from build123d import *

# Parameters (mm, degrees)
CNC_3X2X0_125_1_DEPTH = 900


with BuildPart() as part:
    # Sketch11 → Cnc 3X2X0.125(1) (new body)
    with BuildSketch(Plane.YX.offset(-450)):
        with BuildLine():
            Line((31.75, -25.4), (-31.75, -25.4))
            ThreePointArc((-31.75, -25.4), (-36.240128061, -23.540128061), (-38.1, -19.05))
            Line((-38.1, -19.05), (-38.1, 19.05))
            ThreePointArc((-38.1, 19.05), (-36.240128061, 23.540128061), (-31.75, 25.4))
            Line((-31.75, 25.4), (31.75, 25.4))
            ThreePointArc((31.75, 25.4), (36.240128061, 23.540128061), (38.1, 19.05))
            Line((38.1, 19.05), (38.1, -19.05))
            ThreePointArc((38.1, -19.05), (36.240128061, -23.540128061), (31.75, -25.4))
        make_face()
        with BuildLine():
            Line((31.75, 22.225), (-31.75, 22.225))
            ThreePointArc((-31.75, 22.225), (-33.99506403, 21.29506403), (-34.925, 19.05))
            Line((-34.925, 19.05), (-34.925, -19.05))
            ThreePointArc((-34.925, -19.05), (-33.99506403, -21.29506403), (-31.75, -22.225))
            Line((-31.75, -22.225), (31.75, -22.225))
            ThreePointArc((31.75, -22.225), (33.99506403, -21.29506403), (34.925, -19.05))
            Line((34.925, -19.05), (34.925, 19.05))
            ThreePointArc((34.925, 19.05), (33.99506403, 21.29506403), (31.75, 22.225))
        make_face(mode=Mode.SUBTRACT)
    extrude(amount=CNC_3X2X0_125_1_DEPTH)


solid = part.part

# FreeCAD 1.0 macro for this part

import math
import FreeCAD as App
import Part
import Sketcher

V = App.Vector
Q = App.Units.Quantity

doc = App.newDocument("Part")
body = doc.addObject("PartDesign::Body", "Body")

sketch1 = body.newObject("Sketcher::SketchObject", "Sketch")
sketch1.AttachmentSupport = (doc.getObject("XY_Plane"), [""])
sketch1.MapMode = "FlatFace"
sketch1.AttachmentOffset = App.Placement(V(0, 0, 450), App.Rotation())
sketch1.addGeometry(Part.LineSegment(V(-25.4, -31.75, 0), V(-25.4, 31.75, 0)), False)
sketch1.addGeometry(Part.ArcOfCircle(Part.Circle(V(-19.05, 31.75, 0), V(0, 0, 1), 6.35), math.radians(90), math.radians(180)), False)
sketch1.addGeometry(Part.LineSegment(V(-19.05, 38.1, 0), V(19.05, 38.1, 0)), False)
sketch1.addGeometry(Part.ArcOfCircle(Part.Circle(V(19.05, 31.75, 0), V(0, 0, 1), 6.35), math.radians(0), math.radians(90)), False)
sketch1.addGeometry(Part.LineSegment(V(25.4, 31.75, 0), V(25.4, -31.75, 0)), False)
sketch1.addGeometry(Part.ArcOfCircle(Part.Circle(V(19.05, -31.75, 0), V(0, 0, 1), 6.35), math.radians(-90), math.radians(0)), False)
sketch1.addGeometry(Part.LineSegment(V(19.05, -38.1, 0), V(-19.05, -38.1, 0)), False)
sketch1.addGeometry(Part.ArcOfCircle(Part.Circle(V(-19.05, -31.75, 0), V(0, 0, 1), 6.35), math.radians(180), math.radians(270)), False)
sketch1.addGeometry(Part.ArcOfCircle(Part.Circle(V(19.05, 31.75, 0), V(0, 0, 1), 3.175), math.radians(0), math.radians(90)), False)
sketch1.addGeometry(Part.LineSegment(V(19.05, 34.925, 0), V(-19.05, 34.925, 0)), False)
sketch1.addGeometry(Part.ArcOfCircle(Part.Circle(V(-19.05, 31.75, 0), V(0, 0, 1), 3.175), math.radians(90), math.radians(180)), False)
sketch1.addGeometry(Part.LineSegment(V(-22.225, 31.75, 0), V(-22.225, -31.75, 0)), False)
sketch1.addGeometry(Part.ArcOfCircle(Part.Circle(V(-19.05, -31.75, 0), V(0, 0, 1), 3.175), math.radians(-180), math.radians(-90)), False)
sketch1.addGeometry(Part.LineSegment(V(-19.05, -34.925, 0), V(19.05, -34.925, 0)), False)
sketch1.addGeometry(Part.ArcOfCircle(Part.Circle(V(19.05, -31.75, 0), V(0, 0, 1), 3.175), math.radians(-90), math.radians(0)), False)
sketch1.addGeometry(Part.LineSegment(V(22.225, -31.75, 0), V(22.225, 31.75, 0)), False)
sketch1.addConstraint(Sketcher.Constraint("Tangent", 0, 2, 1, 2))
sketch1.addConstraint(Sketcher.Constraint("Tangent", 1, 1, 2, 1))
sketch1.addConstraint(Sketcher.Constraint("Tangent", 2, 2, 3, 2))
sketch1.addConstraint(Sketcher.Constraint("Tangent", 3, 1, 4, 1))
sketch1.addConstraint(Sketcher.Constraint("Tangent", 4, 2, 5, 2))
sketch1.addConstraint(Sketcher.Constraint("Tangent", 5, 1, 6, 1))
sketch1.addConstraint(Sketcher.Constraint("Tangent", 6, 2, 7, 2))
sketch1.addConstraint(Sketcher.Constraint("Tangent", 7, 1, 0, 1))
sketch1.addConstraint(Sketcher.Constraint("Tangent", 8, 2, 9, 1))
sketch1.addConstraint(Sketcher.Constraint("Tangent", 9, 2, 10, 1))
sketch1.addConstraint(Sketcher.Constraint("Tangent", 10, 2, 11, 1))
sketch1.addConstraint(Sketcher.Constraint("Tangent", 11, 2, 12, 1))
sketch1.addConstraint(Sketcher.Constraint("Tangent", 12, 2, 13, 1))
sketch1.addConstraint(Sketcher.Constraint("Tangent", 13, 2, 14, 1))
sketch1.addConstraint(Sketcher.Constraint("Tangent", 14, 2, 15, 1))
sketch1.addConstraint(Sketcher.Constraint("Tangent", 15, 2, 8, 1))
sketch1.addConstraint(Sketcher.Constraint("Vertical", 0))
sketch1.addConstraint(Sketcher.Constraint("Horizontal", 2))
sketch1.addConstraint(Sketcher.Constraint("Vertical", 4))
sketch1.addConstraint(Sketcher.Constraint("Horizontal", 6))
sketch1.addConstraint(Sketcher.Constraint("Horizontal", 9))
sketch1.addConstraint(Sketcher.Constraint("Vertical", 11))
sketch1.addConstraint(Sketcher.Constraint("Horizontal", 13))
sketch1.addConstraint(Sketcher.Constraint("Vertical", 15))
sketch1.addConstraint(Sketcher.Constraint("Coincident", 8, 3, 3, 3))
sketch1.addConstraint(Sketcher.Constraint("Coincident", 10, 3, 1, 3))
sketch1.addConstraint(Sketcher.Constraint("Coincident", 12, 3, 7, 3))
sketch1.addConstraint(Sketcher.Constraint("Equal", 1, 3))
sketch1.addConstraint(Sketcher.Constraint("Equal", 3, 5))
sketch1.addConstraint(Sketcher.Constraint("Equal", 5, 7))
sketch1.addConstraint(Sketcher.Constraint("Equal", 12, 14))
sketch1.addConstraint(Sketcher.Constraint("Symmetric", 1, 3, 5, 3, -1, 1))
sketch1.addConstraint(Sketcher.Constraint("Radius", 1, Q("0.25 in")))
sketch1.addConstraint(Sketcher.Constraint("DistanceX", 2, 1, 2, 2, Q("1.5 in")))
sketch1.addConstraint(Sketcher.Constraint("DistanceY", 0, 1, 0, 2, Q("2.5 in")))
sketch1.addConstraint(Sketcher.Constraint("Radius", 8, Q("0.125 in")))
pad1 = body.newObject("PartDesign::Pad", "Pad")
pad1.Profile = sketch1
pad1.Length = 900
pad1.Reversed = True

doc.recompute()
